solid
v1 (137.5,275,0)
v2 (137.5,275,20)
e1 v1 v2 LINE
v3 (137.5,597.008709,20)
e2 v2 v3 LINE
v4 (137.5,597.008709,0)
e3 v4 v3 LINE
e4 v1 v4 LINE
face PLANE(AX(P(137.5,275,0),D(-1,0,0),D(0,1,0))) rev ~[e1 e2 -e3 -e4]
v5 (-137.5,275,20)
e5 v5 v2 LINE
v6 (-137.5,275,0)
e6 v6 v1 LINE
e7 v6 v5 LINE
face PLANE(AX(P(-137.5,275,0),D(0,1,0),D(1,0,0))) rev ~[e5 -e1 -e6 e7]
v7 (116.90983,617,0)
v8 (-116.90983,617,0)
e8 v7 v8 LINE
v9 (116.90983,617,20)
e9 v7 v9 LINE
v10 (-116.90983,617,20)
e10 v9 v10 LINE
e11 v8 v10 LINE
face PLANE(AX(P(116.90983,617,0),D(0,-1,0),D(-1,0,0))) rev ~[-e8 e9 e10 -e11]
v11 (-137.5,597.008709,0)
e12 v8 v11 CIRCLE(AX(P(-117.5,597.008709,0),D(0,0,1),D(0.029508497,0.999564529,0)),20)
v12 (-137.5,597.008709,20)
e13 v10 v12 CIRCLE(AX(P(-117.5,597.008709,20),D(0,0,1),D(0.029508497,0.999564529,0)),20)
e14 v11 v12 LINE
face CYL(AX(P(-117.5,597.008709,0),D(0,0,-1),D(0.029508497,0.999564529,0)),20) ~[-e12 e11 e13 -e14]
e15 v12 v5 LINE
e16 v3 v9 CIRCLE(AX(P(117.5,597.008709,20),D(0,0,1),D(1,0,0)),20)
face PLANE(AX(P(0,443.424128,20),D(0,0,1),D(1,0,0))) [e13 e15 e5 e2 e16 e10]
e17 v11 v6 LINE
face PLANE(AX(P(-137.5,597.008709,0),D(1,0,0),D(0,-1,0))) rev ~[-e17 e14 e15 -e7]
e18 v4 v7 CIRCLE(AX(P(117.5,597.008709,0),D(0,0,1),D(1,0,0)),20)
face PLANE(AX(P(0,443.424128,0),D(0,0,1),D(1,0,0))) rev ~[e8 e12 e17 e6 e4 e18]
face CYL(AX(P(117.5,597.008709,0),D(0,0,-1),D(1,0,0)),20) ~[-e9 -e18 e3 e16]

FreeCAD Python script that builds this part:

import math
import FreeCAD as App
import Part
import Sketcher

doc = App.newDocument("Part")
body = doc.addObject("PartDesign::Body", "Body")

# Sketch on XY plane
sketch1 = body.newObject("Sketcher::SketchObject", "Sketch")
sketch1.AttachmentSupport = (doc.getObject("XY_Plane"), [""])
sketch1.MapMode = "FlatFace"
sketch1.addGeometry(Part.ArcOfCircle(Part.Circle(App.Vector(118, 597, 0), App.Vector(0, 0, 1), 20), math.radians(0), math.radians(92)), False)
sketch1.addGeometry(Part.LineSegment(App.Vector(117, 617, 0), App.Vector(-117, 617, 0)), False)
sketch1.addGeometry(Part.ArcOfCircle(Part.Circle(App.Vector(-118, 597, 0), App.Vector(0, 0, 1), 20), math.radians(88), math.radians(180)), False)
sketch1.addGeometry(Part.LineSegment(App.Vector(-138, 597, 0), App.Vector(-138, 275, 0)), False)
sketch1.addGeometry(Part.LineSegment(App.Vector(-138, 275, 0), App.Vector(138, 275, 0)), False)
sketch1.addGeometry(Part.LineSegment(App.Vector(138, 275, 0), App.Vector(138, 597, 0)), False)
sketch1.addConstraint(Sketcher.Constraint("Coincident", 0, 2, 1, 1))
sketch1.addConstraint(Sketcher.Constraint("Coincident", 1, 2, 2, 1))
sketch1.addConstraint(Sketcher.Constraint("Tangent", 2, 2, 3, 1))
sketch1.addConstraint(Sketcher.Constraint("Coincident", 3, 2, 4, 1))
sketch1.addConstraint(Sketcher.Constraint("Coincident", 4, 2, 5, 1))
sketch1.addConstraint(Sketcher.Constraint("Tangent", 5, 2, 0, 1))
sketch1.addConstraint(Sketcher.Constraint("Horizontal", 1))
sketch1.addConstraint(Sketcher.Constraint("Vertical", 3))
sketch1.addConstraint(Sketcher.Constraint("Horizontal", 4))
sketch1.addConstraint(Sketcher.Constraint("Vertical", 5))
sketch1.addConstraint(Sketcher.Constraint("Equal", 0, 2))
sketch1.addConstraint(Sketcher.Constraint("Symmetric", 0, 3, 2, 3, -2))
sketch1.addConstraint(Sketcher.Constraint("Radius", 0, 20.0))
sketch1.addConstraint(Sketcher.Constraint("DistanceX", 4, 1, 4, 2, 275.0))
sketch1.addConstraint(Sketcher.Constraint("DistanceY", -1, 1, 0, 2, 617.0))
sketch1.addConstraint(Sketcher.Constraint("DistanceY", -1, 1, 3, 2, 275.0))
sketch1.addConstraint(Sketcher.Constraint("DistanceX", 1, 2, 1, 1, 233.81966))
pad1 = body.newObject("PartDesign::Pad", "Pad")
pad1.Profile = sketch1
pad1.Length = 20

doc.recompute()
